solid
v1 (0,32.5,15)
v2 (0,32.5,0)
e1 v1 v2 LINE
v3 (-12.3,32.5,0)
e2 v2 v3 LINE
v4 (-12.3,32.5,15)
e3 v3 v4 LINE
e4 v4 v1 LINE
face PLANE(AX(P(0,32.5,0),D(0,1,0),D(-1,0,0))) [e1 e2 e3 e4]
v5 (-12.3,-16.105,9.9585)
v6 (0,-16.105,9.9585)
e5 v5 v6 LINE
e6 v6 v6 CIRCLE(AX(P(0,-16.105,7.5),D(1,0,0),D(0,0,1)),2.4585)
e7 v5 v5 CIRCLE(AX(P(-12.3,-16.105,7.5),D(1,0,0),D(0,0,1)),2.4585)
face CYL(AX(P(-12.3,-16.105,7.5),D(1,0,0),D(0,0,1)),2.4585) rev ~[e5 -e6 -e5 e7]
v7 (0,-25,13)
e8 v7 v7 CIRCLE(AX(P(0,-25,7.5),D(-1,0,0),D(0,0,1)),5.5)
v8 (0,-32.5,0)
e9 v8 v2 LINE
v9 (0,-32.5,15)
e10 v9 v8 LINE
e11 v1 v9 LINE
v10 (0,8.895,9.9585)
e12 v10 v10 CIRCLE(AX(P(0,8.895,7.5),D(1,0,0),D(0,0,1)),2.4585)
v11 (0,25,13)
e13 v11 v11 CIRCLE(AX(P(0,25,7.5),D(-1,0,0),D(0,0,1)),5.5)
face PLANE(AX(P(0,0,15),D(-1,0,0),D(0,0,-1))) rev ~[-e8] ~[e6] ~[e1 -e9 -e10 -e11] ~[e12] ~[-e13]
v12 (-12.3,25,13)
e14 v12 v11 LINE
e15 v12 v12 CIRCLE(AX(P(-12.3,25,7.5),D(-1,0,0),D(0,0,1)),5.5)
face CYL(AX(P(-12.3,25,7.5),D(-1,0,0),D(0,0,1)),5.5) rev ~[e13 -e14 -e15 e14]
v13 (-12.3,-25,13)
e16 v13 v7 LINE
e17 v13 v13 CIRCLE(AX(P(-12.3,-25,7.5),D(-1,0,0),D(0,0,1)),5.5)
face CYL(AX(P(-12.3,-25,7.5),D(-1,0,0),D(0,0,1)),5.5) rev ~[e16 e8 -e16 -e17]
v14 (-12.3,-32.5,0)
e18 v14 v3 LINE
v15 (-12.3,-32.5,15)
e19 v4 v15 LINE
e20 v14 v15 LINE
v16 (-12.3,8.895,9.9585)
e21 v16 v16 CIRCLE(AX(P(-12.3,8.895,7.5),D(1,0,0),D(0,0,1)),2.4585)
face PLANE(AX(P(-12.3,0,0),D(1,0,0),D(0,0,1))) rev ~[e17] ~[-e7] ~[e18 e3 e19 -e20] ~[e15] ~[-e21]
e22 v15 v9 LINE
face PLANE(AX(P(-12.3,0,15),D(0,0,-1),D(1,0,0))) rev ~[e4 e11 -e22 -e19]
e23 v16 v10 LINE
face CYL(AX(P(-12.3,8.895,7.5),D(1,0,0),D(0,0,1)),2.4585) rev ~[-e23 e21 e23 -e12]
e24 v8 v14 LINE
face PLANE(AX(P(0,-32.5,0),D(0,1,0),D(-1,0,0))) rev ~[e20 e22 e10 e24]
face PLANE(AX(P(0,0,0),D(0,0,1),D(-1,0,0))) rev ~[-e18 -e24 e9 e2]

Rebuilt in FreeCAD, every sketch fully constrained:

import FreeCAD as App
import Part
import Sketcher
from FreeCAD import Vector
Q = App.Units.Quantity

doc = App.newDocument("Part")
body = doc.addObject("PartDesign::Body", "Body")

# Sketch on XZ plane
sketch1 = doc.addObject("Sketcher::SketchObject", "Sketch")
body.addObject(sketch1)
sketch1.AttachmentSupport = (doc.XZ_Plane, [""])
sketch1.MapMode = "FlatFace"
sketch1.addGeometry([
    Part.LineSegment(Vector(0, 15, 0), Vector(0, 0, 0)),
    Part.LineSegment(Vector(0, 0, 0), Vector(-12.3, 0, 0)),
    Part.LineSegment(Vector(-12.3, 0, 0), Vector(-12.3, 15, 0)),
    Part.LineSegment(Vector(-12.3, 15, 0), Vector(0, 15, 0)),
], False)
sketch1.addConstraint([
    Sketcher.Constraint("Coincident", 0, 2, 1, 1),
    Sketcher.Constraint("Coincident", 1, 2, 2, 1),
    Sketcher.Constraint("Coincident", 2, 2, 3, 1),
    Sketcher.Constraint("Coincident", 3, 2, 0, 1),
    Sketcher.Constraint("Vertical", 0),
    Sketcher.Constraint("Horizontal", 1),
    Sketcher.Constraint("Vertical", 2),
    Sketcher.Constraint("Horizontal", 3),
    Sketcher.Constraint("Coincident", 0, 2, -1, 1),
    Sketcher.Constraint("DistanceY", 0, 2, 0, 1, Q("15 mm")),
    Sketcher.Constraint("DistanceX", 1, 2, 1, 1, Q("12.3 mm")),
])
pad1 = doc.addObject("PartDesign::Pad", "Pad")
body.addObject(pad1)
pad1.Profile = sketch1
pad1.Length = 65
pad1.Midplane = True

# Sketch on YZ plane
sketch2 = doc.addObject("Sketcher::SketchObject", "Sketch001")
body.addObject(sketch2)
sketch2.AttachmentSupport = (doc.YZ_Plane, [""])
sketch2.MapMode = "FlatFace"
sketch2.AttachmentOffset = App.Placement(Vector(0, 0, -12.3), App.Rotation())
sketch2.addGeometry([
    Part.Circle(Vector(-25, 7.5, 0), Vector(0, 0, 1), 3.25),
    Part.Circle(Vector(25, 7.5, 0), Vector(0, 0, 1), 3.25),
], False)
sketch2.addConstraint([
    Sketcher.Constraint("Equal", 0, 1),
    Sketcher.Constraint("Symmetric", 0, 3, 1, 3, -2),
    Sketcher.Constraint("Diameter", 0, Q("6.5 mm")),
    Sketcher.Constraint("DistanceX", 0, 3, -1, 1, Q("25 mm")),
    Sketcher.Constraint("DistanceY", -1, 1, 0, 3, Q("7.5 mm")),
])
pocket1 = doc.addObject("PartDesign::Pocket", "Pocket")
body.addObject(pocket1)
pocket1.Profile = sketch2
pocket1.Type = "ThroughAll"
pocket1.Reversed = True

# Sketch on YZ plane
sketch3 = doc.addObject("Sketcher::SketchObject", "Sketch002")
body.addObject(sketch3)
sketch3.AttachmentSupport = (doc.YZ_Plane, [""])
sketch3.MapMode = "FlatFace"
sketch3.AttachmentOffset = App.Placement(Vector(0, 0, -12.3), App.Rotation())
sketch3.addGeometry([
    Part.Circle(Vector(-25, 7.5, 0), Vector(0, 0, 1), 5.5),
    Part.Circle(Vector(-25, 7.5, 0), Vector(0, 0, 1), 3.25),
    Part.Circle(Vector(25, 7.5, 0), Vector(0, 0, 1), 5.5),
    Part.Circle(Vector(25, 7.5, 0), Vector(0, 0, 1), 3.25),
], False)
sketch3.addConstraint([
    Sketcher.Constraint("Coincident", 1, 3, 0, 3),
    Sketcher.Constraint("Coincident", 3, 3, 2, 3),
    Sketcher.Constraint("Equal", 0, 2),
    Sketcher.Constraint("Equal", 1, 3),
    Sketcher.Constraint("Symmetric", 0, 3, 2, 3, -2),
    Sketcher.Constraint("Diameter", 0, Q("11 mm")),
    Sketcher.Constraint("Diameter", 1, Q("6.5 mm")),
    Sketcher.Constraint("DistanceX", 0, 3, -1, 1, Q("25 mm")),
    Sketcher.Constraint("DistanceY", -1, 1, 0, 3, Q("7.5 mm")),
])
pocket2 = doc.addObject("PartDesign::Pocket", "Pocket001")
body.addObject(pocket2)
pocket2.Profile = sketch3
pocket2.Length = 21.3
pocket2.Reversed = True

# Sketch on YZ plane
sketch4 = doc.addObject("Sketcher::SketchObject", "Sketch003")
body.addObject(sketch4)
sketch4.AttachmentSupport = (doc.YZ_Plane, [""])
sketch4.MapMode = "FlatFace"
sketch4.AttachmentOffset = App.Placement(Vector(0, 0, -12.3), App.Rotation())
sketch4.addGeometry([
    Part.Circle(Vector(-16.105, 7.5, 0), Vector(0, 0, 1), 2.4585),
    Part.Circle(Vector(8.895, 7.5, 0), Vector(0, 0, 1), 2.4585),
], False)
sketch4.addConstraint([
    Sketcher.Constraint("Equal", 0, 1),
    Sketcher.Constraint("Horizontal", 0, 3, 1, 3),
    Sketcher.Constraint("Diameter", 0, Q("4.917 mm")),
    Sketcher.Constraint("DistanceX", 0, 3, 1, 3, Q("25 mm")),
    Sketcher.Constraint("DistanceY", -1, 1, 0, 3, Q("7.5 mm")),
    Sketcher.Constraint("DistanceX", 0, 3, -1, 1, Q("16.105 mm")),
])
doc.recompute()
hole = doc.addObject("PartDesign::Hole", "Hole")
body.addObject(hole)
hole.Profile = sketch4
hole.ThreadType = "None"
hole.Diameter = 4.917
hole.DepthType = "Dimension"
hole.Depth = 15.1
hole.DrillPoint = "Angled"
hole.DrillPointAngle = 118
hole.Reversed = True

doc.recompute()
